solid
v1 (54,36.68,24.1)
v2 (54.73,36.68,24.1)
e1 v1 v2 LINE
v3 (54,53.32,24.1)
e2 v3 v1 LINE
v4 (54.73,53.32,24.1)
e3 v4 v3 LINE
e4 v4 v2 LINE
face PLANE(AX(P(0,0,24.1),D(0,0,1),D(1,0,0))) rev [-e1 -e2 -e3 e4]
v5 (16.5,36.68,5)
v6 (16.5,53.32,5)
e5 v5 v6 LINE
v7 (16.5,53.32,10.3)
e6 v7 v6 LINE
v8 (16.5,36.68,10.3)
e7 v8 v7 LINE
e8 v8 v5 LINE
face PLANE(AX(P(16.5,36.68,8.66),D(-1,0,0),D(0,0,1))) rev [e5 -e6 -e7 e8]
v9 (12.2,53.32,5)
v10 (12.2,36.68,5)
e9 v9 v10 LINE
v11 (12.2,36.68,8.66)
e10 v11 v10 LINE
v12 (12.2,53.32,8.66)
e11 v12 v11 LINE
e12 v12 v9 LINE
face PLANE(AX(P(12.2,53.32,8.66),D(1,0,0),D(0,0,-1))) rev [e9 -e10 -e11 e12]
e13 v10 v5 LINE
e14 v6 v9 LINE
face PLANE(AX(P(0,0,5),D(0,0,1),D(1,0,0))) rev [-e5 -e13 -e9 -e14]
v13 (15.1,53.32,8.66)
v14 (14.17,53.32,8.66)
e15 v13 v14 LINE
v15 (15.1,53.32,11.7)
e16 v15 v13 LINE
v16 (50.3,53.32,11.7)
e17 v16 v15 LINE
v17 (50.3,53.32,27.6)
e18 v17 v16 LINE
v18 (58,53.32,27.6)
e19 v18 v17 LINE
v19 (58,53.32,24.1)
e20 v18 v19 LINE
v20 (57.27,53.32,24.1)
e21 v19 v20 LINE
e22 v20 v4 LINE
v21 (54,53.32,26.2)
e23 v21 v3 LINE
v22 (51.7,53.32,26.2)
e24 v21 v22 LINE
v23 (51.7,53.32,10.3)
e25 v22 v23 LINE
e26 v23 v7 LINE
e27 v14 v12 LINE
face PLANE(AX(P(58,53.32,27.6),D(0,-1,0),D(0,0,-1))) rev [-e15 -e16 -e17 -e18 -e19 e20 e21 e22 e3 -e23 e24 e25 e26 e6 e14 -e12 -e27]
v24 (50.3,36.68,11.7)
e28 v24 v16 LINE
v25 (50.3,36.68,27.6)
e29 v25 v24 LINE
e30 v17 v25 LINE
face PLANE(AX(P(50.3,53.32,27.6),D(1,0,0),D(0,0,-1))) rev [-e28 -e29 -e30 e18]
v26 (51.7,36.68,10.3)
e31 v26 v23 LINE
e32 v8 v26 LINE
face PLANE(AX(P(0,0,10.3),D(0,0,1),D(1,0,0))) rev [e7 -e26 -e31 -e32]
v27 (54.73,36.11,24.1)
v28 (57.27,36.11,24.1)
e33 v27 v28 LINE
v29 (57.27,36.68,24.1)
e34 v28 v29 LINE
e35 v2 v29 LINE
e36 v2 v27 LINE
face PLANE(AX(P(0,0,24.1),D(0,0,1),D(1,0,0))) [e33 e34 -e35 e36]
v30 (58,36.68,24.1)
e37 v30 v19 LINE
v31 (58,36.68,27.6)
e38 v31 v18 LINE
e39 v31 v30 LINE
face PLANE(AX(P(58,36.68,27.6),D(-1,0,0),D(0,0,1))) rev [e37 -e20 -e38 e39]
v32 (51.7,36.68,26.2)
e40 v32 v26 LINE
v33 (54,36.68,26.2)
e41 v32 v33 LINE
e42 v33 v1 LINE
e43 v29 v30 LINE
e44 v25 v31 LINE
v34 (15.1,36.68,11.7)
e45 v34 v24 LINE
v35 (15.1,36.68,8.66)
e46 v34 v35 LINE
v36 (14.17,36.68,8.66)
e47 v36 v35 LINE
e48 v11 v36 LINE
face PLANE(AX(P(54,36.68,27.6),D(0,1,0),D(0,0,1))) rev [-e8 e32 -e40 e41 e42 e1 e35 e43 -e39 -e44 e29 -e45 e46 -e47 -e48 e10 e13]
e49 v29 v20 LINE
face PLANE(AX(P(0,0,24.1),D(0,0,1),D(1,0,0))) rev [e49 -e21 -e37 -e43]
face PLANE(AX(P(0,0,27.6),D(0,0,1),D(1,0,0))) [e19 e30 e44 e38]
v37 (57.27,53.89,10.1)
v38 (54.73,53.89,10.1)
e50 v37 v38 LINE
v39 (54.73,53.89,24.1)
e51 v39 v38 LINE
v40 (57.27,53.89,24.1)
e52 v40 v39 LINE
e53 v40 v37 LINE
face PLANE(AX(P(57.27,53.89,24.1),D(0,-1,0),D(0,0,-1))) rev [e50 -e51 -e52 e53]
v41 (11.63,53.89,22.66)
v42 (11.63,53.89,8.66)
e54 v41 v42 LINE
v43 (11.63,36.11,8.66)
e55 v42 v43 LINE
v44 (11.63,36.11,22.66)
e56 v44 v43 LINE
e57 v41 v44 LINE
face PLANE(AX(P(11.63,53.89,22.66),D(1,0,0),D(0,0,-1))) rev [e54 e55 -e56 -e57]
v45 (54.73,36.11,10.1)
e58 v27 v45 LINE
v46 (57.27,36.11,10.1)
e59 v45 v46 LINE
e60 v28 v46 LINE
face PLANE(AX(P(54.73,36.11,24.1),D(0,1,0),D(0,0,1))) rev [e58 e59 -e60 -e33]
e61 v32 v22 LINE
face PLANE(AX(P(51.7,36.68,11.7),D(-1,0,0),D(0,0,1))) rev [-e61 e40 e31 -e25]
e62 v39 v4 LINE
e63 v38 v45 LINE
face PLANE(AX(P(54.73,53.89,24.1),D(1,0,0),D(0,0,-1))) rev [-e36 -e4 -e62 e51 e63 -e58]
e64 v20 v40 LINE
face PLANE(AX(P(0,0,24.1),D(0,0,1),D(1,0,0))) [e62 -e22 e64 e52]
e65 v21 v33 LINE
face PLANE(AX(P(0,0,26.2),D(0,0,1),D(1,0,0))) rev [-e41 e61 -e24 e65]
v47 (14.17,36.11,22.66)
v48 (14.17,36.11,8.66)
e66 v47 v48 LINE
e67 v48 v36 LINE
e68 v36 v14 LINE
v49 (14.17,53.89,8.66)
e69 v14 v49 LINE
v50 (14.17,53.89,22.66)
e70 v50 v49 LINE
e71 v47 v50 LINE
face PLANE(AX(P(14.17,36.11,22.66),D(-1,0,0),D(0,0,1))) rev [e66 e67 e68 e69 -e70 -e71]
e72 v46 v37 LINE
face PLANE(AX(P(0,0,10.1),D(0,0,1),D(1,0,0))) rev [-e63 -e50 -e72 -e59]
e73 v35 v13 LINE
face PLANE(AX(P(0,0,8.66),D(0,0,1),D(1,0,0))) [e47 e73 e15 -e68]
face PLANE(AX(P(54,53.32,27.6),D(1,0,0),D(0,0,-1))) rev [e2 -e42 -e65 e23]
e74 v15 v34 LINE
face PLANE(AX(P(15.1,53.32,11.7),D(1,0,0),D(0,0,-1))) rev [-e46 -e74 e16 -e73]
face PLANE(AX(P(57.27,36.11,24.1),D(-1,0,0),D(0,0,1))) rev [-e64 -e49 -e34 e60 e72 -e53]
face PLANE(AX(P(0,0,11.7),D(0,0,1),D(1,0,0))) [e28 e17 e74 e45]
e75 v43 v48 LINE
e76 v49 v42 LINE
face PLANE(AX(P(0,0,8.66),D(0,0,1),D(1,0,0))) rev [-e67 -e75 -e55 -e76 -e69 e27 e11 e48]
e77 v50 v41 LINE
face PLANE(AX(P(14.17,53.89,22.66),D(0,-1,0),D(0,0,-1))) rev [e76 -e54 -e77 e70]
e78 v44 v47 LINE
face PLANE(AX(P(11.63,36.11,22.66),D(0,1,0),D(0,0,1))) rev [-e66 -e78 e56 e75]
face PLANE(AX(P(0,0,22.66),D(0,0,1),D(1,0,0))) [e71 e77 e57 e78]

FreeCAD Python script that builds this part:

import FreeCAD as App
import Part
import Sketcher
from FreeCAD import Vector
Q = App.Units.Quantity


def add_polygon(sketch, points):
    """Adds a closed chain of lines whose ends are joined by coincident constraints."""
    first, n = sketch.GeometryCount, len(points)
    for a, b in zip(points, points[1:] + points[:1]):
        sketch.addGeometry(Part.LineSegment(App.Vector(*a, 0), App.Vector(*b, 0)), False)
    for i in range(n):
        sketch.addConstraint(Sketcher.Constraint("Coincident", first + i, 2, first + (i + 1) % n, 1))

doc = App.newDocument("Part")
body = doc.addObject("PartDesign::Body", "Body")

sketch1 = body.newObject("Sketcher::SketchObject", "Sketch")
sketch1.AttachmentSupport = (doc.getObject("XY_Plane"), [""])
sketch1.MapMode = "FlatFace"
sketch1.AttachmentOffset = App.Placement(Vector(0, 0, 10.1), App.Rotation())
add_polygon(sketch1, [(54.7, 53.9), (54.7, 36.1), (57.3, 36.1), (57.3, 53.9)])
sketch1.addConstraint([
    Sketcher.Constraint("Vertical", 0),
    Sketcher.Constraint("Horizontal", 1),
    Sketcher.Constraint("Vertical", 2),
    Sketcher.Constraint("Horizontal", 3),
    Sketcher.Constraint("DistanceX", 1, 1, 1, 2, Q("2.54 mm")),
    Sketcher.Constraint("DistanceY", 0, 2, 0, 1, Q("17.78 mm")),
    Sketcher.Constraint("DistanceX", -1, 1, 0, 2, Q("54.73 mm")),
    Sketcher.Constraint("DistanceY", -1, 1, 0, 2, Q("36.11 mm")),
])
pad1 = body.newObject("PartDesign::Pad", "Pad")
pad1.Profile = sketch1
pad1.Length = 14
body2 = doc.addObject("PartDesign::Body", "Body001")

sketch2 = body2.newObject("Sketcher::SketchObject", "Sketch001")
sketch2.AttachmentSupport = (doc.getObject("XY_Plane001"), [""])
sketch2.MapMode = "FlatFace"
sketch2.AttachmentOffset = App.Placement(Vector(0, 0, 8.66), App.Rotation())
add_polygon(sketch2, [(11.6, 53.9), (11.6, 36.1), (14.2, 36.1), (14.2, 53.9)])
sketch2.addConstraint([
    Sketcher.Constraint("Vertical", 0),
    Sketcher.Constraint("Horizontal", 1),
    Sketcher.Constraint("Vertical", 2),
    Sketcher.Constraint("Horizontal", 3),
    Sketcher.Constraint("DistanceX", 1, 1, 1, 2, Q("2.54 mm")),
    Sketcher.Constraint("DistanceY", 0, 2, 0, 1, Q("17.78 mm")),
    Sketcher.Constraint("DistanceX", -1, 1, 0, 2, Q("11.63 mm")),
    Sketcher.Constraint("DistanceY", -1, 1, 0, 2, Q("36.11 mm")),
])
pad2 = body2.newObject("PartDesign::Pad", "Pad001")
pad2.Profile = sketch2
pad2.Length = 14

sketch3 = body2.newObject("Sketcher::SketchObject", "Sketch002")
sketch3.AttachmentSupport = (doc.getObject("XY_Plane001"), [""])
sketch3.MapMode = "FlatFace"
sketch3.AttachmentOffset = App.Placement(Vector(0, 0, 5), App.Rotation())
add_polygon(sketch3, [(12.2, 53.3), (12.2, 36.7), (16.5, 36.7), (16.5, 53.3)])
sketch3.addConstraint([
    Sketcher.Constraint("Vertical", 0),
    Sketcher.Constraint("Horizontal", 1),
    Sketcher.Constraint("Vertical", 2),
    Sketcher.Constraint("Horizontal", 3),
    Sketcher.Constraint("DistanceX", 1, 1, 1, 2, Q("4.3 mm")),
    Sketcher.Constraint("DistanceY", 0, 2, 0, 1, Q("16.64 mm")),
    Sketcher.Constraint("DistanceX", -1, 1, 0, 2, Q("12.2 mm")),
    Sketcher.Constraint("DistanceY", -1, 1, 0, 2, Q("36.68 mm")),
])
pad3 = body2.newObject("PartDesign::Pad", "Pad002")
pad3.Profile = sketch3
pad3.Length = 3.66

sketch4 = body2.newObject("Sketcher::SketchObject", "Sketch003")
sketch4.AttachmentSupport = (doc.getObject("XY_Plane001"), [""])
sketch4.MapMode = "FlatFace"
sketch4.AttachmentOffset = App.Placement(Vector(0, 0, 5), App.Rotation())
add_polygon(sketch4, [(15.1, 53.3), (15.1, 36.7), (16.5, 36.7), (16.5, 53.3)])
sketch4.addConstraint([
    Sketcher.Constraint("Vertical", 0),
    Sketcher.Constraint("Horizontal", 1),
    Sketcher.Constraint("Vertical", 2),
    Sketcher.Constraint("Horizontal", 3),
    Sketcher.Constraint("DistanceX", 1, 1, 1, 2, Q("1.4 mm")),
    Sketcher.Constraint("DistanceY", 0, 2, 0, 1, Q("16.64 mm")),
    Sketcher.Constraint("DistanceX", -1, 1, 0, 2, Q("15.1 mm")),
    Sketcher.Constraint("DistanceY", -1, 1, 0, 2, Q("36.68 mm")),
])
pad4 = body2.newObject("PartDesign::Pad", "Pad003")
pad4.Profile = sketch4
pad4.Length = 6.7

sketch5 = body2.newObject("Sketcher::SketchObject", "Sketch004")
sketch5.AttachmentSupport = (doc.getObject("XY_Plane001"), [""])
sketch5.MapMode = "FlatFace"
sketch5.AttachmentOffset = App.Placement(Vector(0, 0, 10.3), App.Rotation())
add_polygon(sketch5, [(15, 53), (15, 37), (52, 37), (52, 53)])
sketch5.addConstraint([
    Sketcher.Constraint("Vertical", 0),
    Sketcher.Constraint("Horizontal", 1),
    Sketcher.Constraint("Vertical", 2),
    Sketcher.Constraint("Horizontal", 3),
    Sketcher.Constraint("DistanceX", 1, 1, 1, 2, Q("36.6 mm")),
    Sketcher.Constraint("DistanceY", 0, 2, 0, 1, Q("16.64 mm")),
    Sketcher.Constraint("DistanceX", -1, 1, 0, 2, Q("15.1 mm")),
    Sketcher.Constraint("DistanceY", -1, 1, 0, 2, Q("36.68 mm")),
])
pad5 = body2.newObject("PartDesign::Pad", "Pad004")
pad5.Profile = sketch5
pad5.Length = 1.4

sketch6 = body2.newObject("Sketcher::SketchObject", "Sketch005")
sketch6.AttachmentSupport = (doc.getObject("XY_Plane001"), [""])
sketch6.MapMode = "FlatFace"
sketch6.AttachmentOffset = App.Placement(Vector(0, 0, 10.3), App.Rotation())
add_polygon(sketch6, [(50.3, 53.3), (50.3, 36.7), (51.7, 36.7), (51.7, 53.3)])
sketch6.addConstraint([
    Sketcher.Constraint("Vertical", 0),
    Sketcher.Constraint("Horizontal", 1),
    Sketcher.Constraint("Vertical", 2),
    Sketcher.Constraint("Horizontal", 3),
    Sketcher.Constraint("DistanceX", 1, 1, 1, 2, Q("1.4 mm")),
    Sketcher.Constraint("DistanceY", 0, 2, 0, 1, Q("16.64 mm")),
    Sketcher.Constraint("DistanceX", -1, 1, 0, 2, Q("50.3 mm")),
    Sketcher.Constraint("DistanceY", -1, 1, 0, 2, Q("36.68 mm")),
])
pad6 = body2.newObject("PartDesign::Pad", "Pad005")
pad6.Profile = sketch6
pad6.Length = 17.3

sketch7 = body2.newObject("Sketcher::SketchObject", "Sketch006")
sketch7.AttachmentSupport = (doc.getObject("XY_Plane001"), [""])
sketch7.MapMode = "FlatFace"
sketch7.AttachmentOffset = App.Placement(Vector(0, 0, 26.2), App.Rotation())
add_polygon(sketch7, [(50, 53), (50, 37), (58, 37), (58, 53)])
sketch7.addConstraint([
    Sketcher.Constraint("Vertical", 0),
    Sketcher.Constraint("Horizontal", 1),
    Sketcher.Constraint("Vertical", 2),
    Sketcher.Constraint("Horizontal", 3),
    Sketcher.Constraint("DistanceX", 1, 1, 1, 2, Q("7.7 mm")),
    Sketcher.Constraint("DistanceX", -1, 1, 1, 2, Q("58 mm")),
    Sketcher.Constraint("DistanceY", 0, 2, 0, 1, Q("16.64 mm")),
    Sketcher.Constraint("DistanceY", -1, 1, 0, 2, Q("36.68 mm")),
])
pad7 = body2.newObject("PartDesign::Pad", "Pad006")
pad7.Profile = sketch7
pad7.Length = 1.4
body.AllowCompound = True
doc.recompute()

boolean = body.newObject("PartDesign::Boolean", "Boolean")
boolean.Type = "Fuse"
boolean.addObjects([body2])

sketch8 = body.newObject("Sketcher::SketchObject", "Sketch007")
sketch8.AttachmentSupport = (doc.getObject("XY_Plane"), [""])
sketch8.MapMode = "FlatFace"
sketch8.AttachmentOffset = App.Placement(Vector(0, 0, 24.1), App.Rotation())
add_polygon(sketch8, [(54, 53.3), (54, 36.7), (58, 36.7), (58, 53.3)])
sketch8.addConstraint([
    Sketcher.Constraint("Vertical", 0),
    Sketcher.Constraint("Horizontal", 1),
    Sketcher.Constraint("Vertical", 2),
    Sketcher.Constraint("Horizontal", 3),
    Sketcher.Constraint("DistanceX", 1, 1, 1, 2, Q("4 mm")),
    Sketcher.Constraint("DistanceX", -1, 1, 0, 2, Q("54 mm")),
    Sketcher.Constraint("DistanceY", 0, 2, 0, 1, Q("16.64 mm")),
    Sketcher.Constraint("DistanceY", -1, 1, 0, 2, Q("36.68 mm")),
])
pad8 = body.newObject("PartDesign::Pad", "Pad007")
pad8.Profile = sketch8
pad8.Length = 3.5

doc.recompute()
